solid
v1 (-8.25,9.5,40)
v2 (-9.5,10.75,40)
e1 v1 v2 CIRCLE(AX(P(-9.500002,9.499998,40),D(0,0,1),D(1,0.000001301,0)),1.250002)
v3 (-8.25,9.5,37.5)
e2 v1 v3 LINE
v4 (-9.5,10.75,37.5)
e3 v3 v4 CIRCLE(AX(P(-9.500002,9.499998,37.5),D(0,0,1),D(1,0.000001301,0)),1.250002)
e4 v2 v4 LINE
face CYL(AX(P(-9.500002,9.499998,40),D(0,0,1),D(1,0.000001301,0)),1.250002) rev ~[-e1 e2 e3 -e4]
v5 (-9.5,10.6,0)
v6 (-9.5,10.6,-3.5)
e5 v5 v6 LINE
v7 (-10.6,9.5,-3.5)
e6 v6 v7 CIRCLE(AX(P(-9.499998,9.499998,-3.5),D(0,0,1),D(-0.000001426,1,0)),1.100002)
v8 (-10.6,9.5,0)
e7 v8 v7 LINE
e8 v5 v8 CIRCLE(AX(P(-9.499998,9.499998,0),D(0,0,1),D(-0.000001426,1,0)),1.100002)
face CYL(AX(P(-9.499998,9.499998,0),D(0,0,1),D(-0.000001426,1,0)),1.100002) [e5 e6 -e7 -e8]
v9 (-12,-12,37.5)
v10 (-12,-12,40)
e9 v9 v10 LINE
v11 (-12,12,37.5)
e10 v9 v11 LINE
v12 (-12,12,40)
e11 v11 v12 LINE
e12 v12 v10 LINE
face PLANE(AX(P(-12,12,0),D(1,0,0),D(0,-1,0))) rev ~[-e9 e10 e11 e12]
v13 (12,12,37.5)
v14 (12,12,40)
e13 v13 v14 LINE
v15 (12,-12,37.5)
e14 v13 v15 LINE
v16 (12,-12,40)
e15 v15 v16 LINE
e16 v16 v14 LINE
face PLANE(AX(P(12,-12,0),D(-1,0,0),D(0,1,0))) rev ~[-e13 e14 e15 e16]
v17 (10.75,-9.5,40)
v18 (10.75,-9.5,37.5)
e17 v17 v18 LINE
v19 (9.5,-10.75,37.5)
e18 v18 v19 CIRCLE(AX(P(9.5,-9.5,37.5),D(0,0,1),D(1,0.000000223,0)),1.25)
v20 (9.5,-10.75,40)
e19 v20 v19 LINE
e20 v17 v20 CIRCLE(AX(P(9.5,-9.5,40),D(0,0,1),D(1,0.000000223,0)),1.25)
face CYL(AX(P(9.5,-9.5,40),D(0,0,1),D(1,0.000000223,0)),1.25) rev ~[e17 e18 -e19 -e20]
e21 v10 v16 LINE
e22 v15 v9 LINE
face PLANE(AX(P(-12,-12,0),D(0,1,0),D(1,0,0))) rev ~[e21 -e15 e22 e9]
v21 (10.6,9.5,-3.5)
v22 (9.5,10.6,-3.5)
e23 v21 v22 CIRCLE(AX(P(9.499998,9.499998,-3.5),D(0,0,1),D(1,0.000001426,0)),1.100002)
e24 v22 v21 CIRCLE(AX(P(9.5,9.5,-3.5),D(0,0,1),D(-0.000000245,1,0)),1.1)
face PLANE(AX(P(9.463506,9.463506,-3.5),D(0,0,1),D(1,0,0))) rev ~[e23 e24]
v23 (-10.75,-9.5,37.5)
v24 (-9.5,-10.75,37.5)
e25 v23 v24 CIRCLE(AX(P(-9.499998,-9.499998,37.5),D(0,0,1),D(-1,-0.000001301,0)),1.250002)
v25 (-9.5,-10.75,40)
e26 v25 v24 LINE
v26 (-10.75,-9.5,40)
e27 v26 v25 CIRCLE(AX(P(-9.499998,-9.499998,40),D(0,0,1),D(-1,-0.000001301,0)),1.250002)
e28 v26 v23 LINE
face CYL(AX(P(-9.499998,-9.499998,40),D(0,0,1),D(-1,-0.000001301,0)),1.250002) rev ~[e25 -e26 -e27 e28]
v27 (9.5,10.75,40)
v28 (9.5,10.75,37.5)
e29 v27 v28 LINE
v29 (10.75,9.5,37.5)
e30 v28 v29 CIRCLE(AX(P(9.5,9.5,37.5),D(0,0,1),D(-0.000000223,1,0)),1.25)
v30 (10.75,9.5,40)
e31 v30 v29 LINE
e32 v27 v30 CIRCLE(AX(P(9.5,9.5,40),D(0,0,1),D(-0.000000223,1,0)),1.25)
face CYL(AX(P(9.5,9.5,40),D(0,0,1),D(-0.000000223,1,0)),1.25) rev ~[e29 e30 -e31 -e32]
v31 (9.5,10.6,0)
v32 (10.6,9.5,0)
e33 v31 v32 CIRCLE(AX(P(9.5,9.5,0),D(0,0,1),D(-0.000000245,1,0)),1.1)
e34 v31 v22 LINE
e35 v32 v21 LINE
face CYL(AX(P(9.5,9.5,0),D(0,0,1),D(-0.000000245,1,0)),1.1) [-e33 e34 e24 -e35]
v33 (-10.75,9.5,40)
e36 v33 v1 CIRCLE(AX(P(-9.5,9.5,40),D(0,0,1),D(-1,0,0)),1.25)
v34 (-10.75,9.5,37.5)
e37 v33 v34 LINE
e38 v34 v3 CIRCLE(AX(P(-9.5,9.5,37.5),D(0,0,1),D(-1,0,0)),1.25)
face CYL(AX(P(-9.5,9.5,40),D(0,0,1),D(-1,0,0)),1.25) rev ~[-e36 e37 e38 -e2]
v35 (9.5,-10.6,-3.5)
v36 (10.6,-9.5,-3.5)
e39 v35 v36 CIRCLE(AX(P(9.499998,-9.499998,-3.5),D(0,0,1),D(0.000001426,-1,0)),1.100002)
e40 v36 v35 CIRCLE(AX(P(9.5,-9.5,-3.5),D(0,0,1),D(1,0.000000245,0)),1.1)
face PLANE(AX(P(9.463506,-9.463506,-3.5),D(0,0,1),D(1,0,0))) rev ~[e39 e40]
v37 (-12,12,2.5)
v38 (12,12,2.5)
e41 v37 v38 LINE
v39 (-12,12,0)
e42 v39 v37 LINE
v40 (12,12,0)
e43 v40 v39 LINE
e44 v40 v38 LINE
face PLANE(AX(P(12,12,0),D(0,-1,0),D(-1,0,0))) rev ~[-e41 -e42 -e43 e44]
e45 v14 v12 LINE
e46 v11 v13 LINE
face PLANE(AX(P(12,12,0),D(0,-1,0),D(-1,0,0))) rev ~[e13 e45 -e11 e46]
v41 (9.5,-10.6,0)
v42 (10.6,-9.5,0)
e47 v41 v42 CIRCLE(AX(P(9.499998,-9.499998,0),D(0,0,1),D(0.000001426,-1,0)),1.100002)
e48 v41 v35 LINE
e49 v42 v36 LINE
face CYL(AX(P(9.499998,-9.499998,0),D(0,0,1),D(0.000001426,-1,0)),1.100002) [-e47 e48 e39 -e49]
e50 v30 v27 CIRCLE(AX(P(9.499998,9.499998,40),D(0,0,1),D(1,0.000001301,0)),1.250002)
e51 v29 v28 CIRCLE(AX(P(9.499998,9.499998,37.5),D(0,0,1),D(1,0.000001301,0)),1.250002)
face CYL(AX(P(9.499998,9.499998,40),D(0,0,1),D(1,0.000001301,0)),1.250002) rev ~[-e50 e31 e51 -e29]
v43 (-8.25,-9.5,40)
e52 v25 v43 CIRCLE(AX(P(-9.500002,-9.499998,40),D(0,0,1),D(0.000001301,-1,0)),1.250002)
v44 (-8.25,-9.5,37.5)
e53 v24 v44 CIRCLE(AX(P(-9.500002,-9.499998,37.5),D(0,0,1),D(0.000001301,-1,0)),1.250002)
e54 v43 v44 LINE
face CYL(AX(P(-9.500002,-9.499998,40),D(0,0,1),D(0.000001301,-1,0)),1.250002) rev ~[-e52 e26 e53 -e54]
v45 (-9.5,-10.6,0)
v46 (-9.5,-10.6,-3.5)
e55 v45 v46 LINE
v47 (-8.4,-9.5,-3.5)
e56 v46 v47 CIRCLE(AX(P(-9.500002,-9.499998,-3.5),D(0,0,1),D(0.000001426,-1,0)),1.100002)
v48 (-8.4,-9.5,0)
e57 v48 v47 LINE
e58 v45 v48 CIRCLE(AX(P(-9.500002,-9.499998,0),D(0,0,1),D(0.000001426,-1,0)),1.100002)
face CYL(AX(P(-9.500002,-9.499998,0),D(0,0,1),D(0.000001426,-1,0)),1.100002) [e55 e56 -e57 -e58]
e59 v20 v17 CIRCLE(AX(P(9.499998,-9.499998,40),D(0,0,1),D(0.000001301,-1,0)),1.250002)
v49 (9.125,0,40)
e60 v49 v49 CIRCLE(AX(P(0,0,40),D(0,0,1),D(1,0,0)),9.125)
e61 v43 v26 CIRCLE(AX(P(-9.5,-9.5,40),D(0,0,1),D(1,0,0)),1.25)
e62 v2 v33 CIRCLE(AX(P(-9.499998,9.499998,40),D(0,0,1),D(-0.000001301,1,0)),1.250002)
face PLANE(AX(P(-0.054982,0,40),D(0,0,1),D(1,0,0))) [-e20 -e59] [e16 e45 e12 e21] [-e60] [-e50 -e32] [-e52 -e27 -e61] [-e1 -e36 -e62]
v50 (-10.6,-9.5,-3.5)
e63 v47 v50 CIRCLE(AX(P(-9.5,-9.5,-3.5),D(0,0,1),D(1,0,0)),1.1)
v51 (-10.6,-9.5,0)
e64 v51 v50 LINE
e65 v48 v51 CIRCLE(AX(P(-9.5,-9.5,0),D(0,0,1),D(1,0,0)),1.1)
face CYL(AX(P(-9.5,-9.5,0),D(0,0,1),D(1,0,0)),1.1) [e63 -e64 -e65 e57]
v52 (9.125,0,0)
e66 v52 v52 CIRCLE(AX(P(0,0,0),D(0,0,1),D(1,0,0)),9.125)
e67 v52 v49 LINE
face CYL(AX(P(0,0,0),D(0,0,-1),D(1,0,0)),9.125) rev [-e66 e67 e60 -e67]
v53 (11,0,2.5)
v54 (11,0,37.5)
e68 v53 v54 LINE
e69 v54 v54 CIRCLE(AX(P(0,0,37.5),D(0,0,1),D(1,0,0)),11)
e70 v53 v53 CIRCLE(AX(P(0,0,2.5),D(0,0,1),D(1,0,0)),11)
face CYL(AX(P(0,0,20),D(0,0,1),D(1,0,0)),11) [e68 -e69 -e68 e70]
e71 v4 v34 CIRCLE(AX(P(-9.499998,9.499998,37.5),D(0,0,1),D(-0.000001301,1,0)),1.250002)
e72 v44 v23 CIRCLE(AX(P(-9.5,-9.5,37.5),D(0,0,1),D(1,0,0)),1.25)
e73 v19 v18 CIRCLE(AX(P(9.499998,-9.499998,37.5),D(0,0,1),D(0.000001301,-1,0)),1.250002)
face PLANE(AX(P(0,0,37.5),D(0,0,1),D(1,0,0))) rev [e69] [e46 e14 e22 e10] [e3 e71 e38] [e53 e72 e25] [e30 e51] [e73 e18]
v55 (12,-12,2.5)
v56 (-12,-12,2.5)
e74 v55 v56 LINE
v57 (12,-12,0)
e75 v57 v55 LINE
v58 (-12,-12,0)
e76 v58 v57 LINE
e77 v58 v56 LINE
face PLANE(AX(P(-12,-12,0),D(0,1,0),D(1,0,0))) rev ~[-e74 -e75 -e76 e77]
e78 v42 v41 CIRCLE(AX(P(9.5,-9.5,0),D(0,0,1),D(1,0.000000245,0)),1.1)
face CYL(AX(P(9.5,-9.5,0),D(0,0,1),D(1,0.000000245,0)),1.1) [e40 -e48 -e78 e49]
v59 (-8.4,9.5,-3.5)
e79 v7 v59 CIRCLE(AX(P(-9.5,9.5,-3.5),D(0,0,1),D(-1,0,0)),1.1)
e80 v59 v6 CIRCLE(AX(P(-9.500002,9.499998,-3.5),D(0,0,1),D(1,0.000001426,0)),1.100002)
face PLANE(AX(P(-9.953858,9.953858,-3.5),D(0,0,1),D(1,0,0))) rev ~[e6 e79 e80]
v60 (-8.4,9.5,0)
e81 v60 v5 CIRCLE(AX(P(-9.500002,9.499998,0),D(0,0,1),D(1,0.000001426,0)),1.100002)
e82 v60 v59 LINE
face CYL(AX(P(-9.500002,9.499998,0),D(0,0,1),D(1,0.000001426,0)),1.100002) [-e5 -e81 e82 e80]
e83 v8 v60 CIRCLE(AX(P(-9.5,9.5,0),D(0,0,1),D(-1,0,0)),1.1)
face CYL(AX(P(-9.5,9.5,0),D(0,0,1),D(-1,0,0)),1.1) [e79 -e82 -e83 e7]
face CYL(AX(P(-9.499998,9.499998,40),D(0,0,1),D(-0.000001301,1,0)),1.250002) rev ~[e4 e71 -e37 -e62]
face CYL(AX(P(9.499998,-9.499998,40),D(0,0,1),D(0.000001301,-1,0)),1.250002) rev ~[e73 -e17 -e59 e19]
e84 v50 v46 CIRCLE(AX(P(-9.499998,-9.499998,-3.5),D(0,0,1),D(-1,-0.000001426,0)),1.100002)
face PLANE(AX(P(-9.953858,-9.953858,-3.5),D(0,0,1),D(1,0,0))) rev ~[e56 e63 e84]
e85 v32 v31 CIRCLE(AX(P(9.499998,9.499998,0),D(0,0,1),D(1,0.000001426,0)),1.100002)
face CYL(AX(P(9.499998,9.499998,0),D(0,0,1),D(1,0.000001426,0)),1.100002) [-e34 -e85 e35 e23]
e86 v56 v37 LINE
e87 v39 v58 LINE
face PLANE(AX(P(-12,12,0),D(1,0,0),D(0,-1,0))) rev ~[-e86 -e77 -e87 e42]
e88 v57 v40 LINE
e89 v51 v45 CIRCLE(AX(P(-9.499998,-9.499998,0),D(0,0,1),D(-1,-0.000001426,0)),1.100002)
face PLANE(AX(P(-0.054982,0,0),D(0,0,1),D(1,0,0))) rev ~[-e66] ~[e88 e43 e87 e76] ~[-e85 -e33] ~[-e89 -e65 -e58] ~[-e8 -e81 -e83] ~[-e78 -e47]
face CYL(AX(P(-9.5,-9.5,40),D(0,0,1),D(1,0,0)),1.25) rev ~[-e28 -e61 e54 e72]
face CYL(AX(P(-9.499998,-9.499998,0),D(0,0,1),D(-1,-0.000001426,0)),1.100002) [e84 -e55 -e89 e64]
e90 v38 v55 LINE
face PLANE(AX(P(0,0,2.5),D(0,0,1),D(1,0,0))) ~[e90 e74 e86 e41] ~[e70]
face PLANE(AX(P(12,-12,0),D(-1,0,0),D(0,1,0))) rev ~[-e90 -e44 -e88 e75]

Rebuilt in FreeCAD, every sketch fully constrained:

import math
import FreeCAD as App
import Part
import Sketcher

V = App.Vector
Q = App.Units.Quantity


def add_polygon(sketch, points):
    """Adds a closed chain of lines whose ends are joined by coincident constraints."""
    first, n = sketch.GeometryCount, len(points)
    for a, b in zip(points, points[1:] + points[:1]):
        sketch.addGeometry(Part.LineSegment(App.Vector(*a, 0), App.Vector(*b, 0)), False)
    for i in range(n):
        sketch.addConstraint(Sketcher.Constraint("Coincident", first + i, 2, first + (i + 1) % n, 1))

doc = App.newDocument("Part")
body = doc.addObject("PartDesign::Body", "Body")

sketch1 = doc.addObject("Sketcher::SketchObject", "Sketch")
body.addObject(sketch1)
sketch1.AttachmentSupport = (doc.XY_Plane, [""])
sketch1.MapMode = "FlatFace"
add_polygon(sketch1, [(-12, 12), (-12, -12), (12, -12), (12, 12)])
sketch1.addGeometry(Part.Circle(V(0, 0, 0), V(0, 0, 1), 9.125), False)
sketch1.addConstraint([
    Sketcher.Constraint("Vertical", 0),
    Sketcher.Constraint("Horizontal", 1),
    Sketcher.Constraint("Vertical", 2),
    Sketcher.Constraint("Horizontal", 3),
    Sketcher.Constraint("Coincident", 4, 3, -1, 1),
    Sketcher.Constraint("Symmetric", 0, 2, 2, 2, -1, 1),
    Sketcher.Constraint("Equal", 3, 0),
    Sketcher.Constraint("Diameter", 4, Q("18.25 mm")),
    Sketcher.Constraint("DistanceX", 1, 1, 1, 2, Q("24 mm")),
])
pad1 = doc.addObject("PartDesign::Pad", "Pad")
body.addObject(pad1)
pad1.Profile = sketch1
pad1.Length = 40

sketch2 = doc.addObject("Sketcher::SketchObject", "Sketch001")
body.addObject(sketch2)
sketch2.AttachmentSupport = (doc.XZ_Plane, [""])
sketch2.MapMode = "FlatFace"
add_polygon(sketch2, [(11, 37.5), (11, 2.5), (17, 2.5), (17, 37.5)])
sketch2.addConstraint([
    Sketcher.Constraint("Vertical", 0),
    Sketcher.Constraint("Horizontal", 1),
    Sketcher.Constraint("Vertical", 2),
    Sketcher.Constraint("Horizontal", 3),
    Sketcher.Constraint("DistanceX", 1, 1, 1, 2, Q("6 mm")),
    Sketcher.Constraint("DistanceY", 0, 2, 0, 1, Q("35 mm")),
    Sketcher.Constraint("DistanceX", -1, 1, 0, 2, Q("11 mm")),
    Sketcher.Constraint("DistanceY", -1, 1, 0, 2, Q("2.5 mm")),
])
groove = doc.addObject("PartDesign::Groove", "Groove")
body.addObject(groove)
groove.Profile = sketch2
groove.ReferenceAxis = (sketch2, ["V_Axis"])
groove.Angle = 360

sketch3 = doc.addObject("Sketcher::SketchObject", "Sketch002")
body.addObject(sketch3)
sketch3.AttachmentSupport = (doc.XY_Plane, [""])
sketch3.MapMode = "FlatFace"
sketch3.addGeometry([
    Part.ArcOfCircle(Part.Circle(V(-9.499998, 9.499998, 0), V(0, 0, 1), 1.100002), math.radians(90.000082), math.radians(179.999918)),
    Part.ArcOfCircle(Part.Circle(V(-9.5, 9.5, 0), V(0, 0, 1), 1.1), math.radians(180), math.radians(360)),
    Part.ArcOfCircle(Part.Circle(V(-9.500002, 9.499998, 0), V(0, 0, 1), 1.100002), math.radians(0.000082), math.radians(89.999918)),
    Part.ArcOfCircle(Part.Circle(V(-9.499998, -9.499998, 0), V(0, 0, 1), 1.100002), math.radians(-179.999918), math.radians(-90.000082)),
    Part.ArcOfCircle(Part.Circle(V(-9.500002, -9.499998, 0), V(0, 0, 1), 1.100002), math.radians(-89.999918), math.radians(-0.000082)),
    Part.ArcOfCircle(Part.Circle(V(-9.5, -9.5, 0), V(0, 0, 1), 1.1), math.radians(0), math.radians(180)),
    Part.ArcOfCircle(Part.Circle(V(9.5, -9.5, 0), V(0, 0, 1), 1.1), math.radians(0.000014), math.radians(269.999986)),
    Part.ArcOfCircle(Part.Circle(V(9.499998, -9.499998, 0), V(0, 0, 1), 1.100002), math.radians(-89.999918), math.radians(-0.000082)),
    Part.ArcOfCircle(Part.Circle(V(9.5, 9.5, 0), V(0, 0, 1), 1.1), math.radians(90.000014), math.radians(359.999986)),
    Part.ArcOfCircle(Part.Circle(V(9.499998, 9.499998, 0), V(0, 0, 1), 1.100002), math.radians(0.000082), math.radians(89.999918)),
], False)
sketch3.addConstraint([
    Sketcher.Constraint("Tangent", 0, 2, 1, 1),
    Sketcher.Constraint("Tangent", 1, 2, 2, 1),
    Sketcher.Constraint("Coincident", 2, 2, 0, 1),
    Sketcher.Constraint("Coincident", 3, 2, 4, 1),
    Sketcher.Constraint("Tangent", 4, 2, 5, 1),
    Sketcher.Constraint("Tangent", 5, 2, 3, 1),
    Sketcher.Constraint("Tangent", 6, 1, 7, 2),
    Sketcher.Constraint("Coincident", 7, 1, 6, 2),
    Sketcher.Constraint("Tangent", 8, 1, 9, 2),
    Sketcher.Constraint("Coincident", 9, 1, 8, 2),
    Sketcher.Constraint("Equal", 0, 1),
    Sketcher.Constraint("Equal", 2, 3),
    Sketcher.Constraint("Equal", 4, 5),
    Sketcher.Constraint("Equal", 5, 6),
    Sketcher.Constraint("Equal", 7, 8),
    Sketcher.Constraint("Symmetric", 0, 3, 6, 3, -1, 1),
    Sketcher.Constraint("Symmetric", 3, 3, 8, 3, -1, 1),
    Sketcher.Constraint("Symmetric", 3, 3, 6, 3, -2),
    Sketcher.Constraint("Horizontal", 9, 3, 0, 2),
    Sketcher.Constraint("Horizontal", 0, 2, 1, 2),
    Sketcher.Constraint("Horizontal", 7, 3, 4, 2),
    Sketcher.Constraint("Horizontal", 4, 2, 5, 2),
    Sketcher.Constraint("Horizontal", 5, 2, 6, 1),
    Sketcher.Constraint("Horizontal", 1, 2, 9, 1),
    Sketcher.Constraint("Vertical", 5, 3, 2, 2),
    Sketcher.Constraint("Vertical", 2, 2, 3, 2),
    Sketcher.Constraint("Vertical", 9, 3, 7, 1),
    Sketcher.Constraint("Vertical", 7, 1, 8, 1),
    Sketcher.Constraint("Radius", 0, Q("1.100002 mm")),
    Sketcher.Constraint("DistanceY", 3, 3, 1, 3, Q("18.999998 mm")),
    Sketcher.Constraint("DistanceX", 3, 3, 6, 3, Q("18.999999 mm")),
])
pad2 = doc.addObject("PartDesign::Pad", "Pad001")
body.addObject(pad2)
pad2.Profile = sketch3
pad2.Length = 3.5
pad2.Reversed = True

sketch4 = doc.addObject("Sketcher::SketchObject", "Sketch003")
body.addObject(sketch4)
sketch4.AttachmentSupport = (doc.XY_Plane, [""])
sketch4.MapMode = "FlatFace"
sketch4.AttachmentOffset = App.Placement(V(0, 0, 40), App.Rotation())
sketch4.addGeometry([
    Part.ArcOfCircle(Part.Circle(V(9.5, -9.5, 0), V(0, 0, 1), 1.25), math.radians(0.000013), math.radians(269.999987)),
    Part.ArcOfCircle(Part.Circle(V(9.499998, -9.499998, 0), V(0, 0, 1), 1.250002), math.radians(-89.999925), math.radians(-0.000075)),
    Part.ArcOfCircle(Part.Circle(V(-9.499998, 9.499998, 0), V(0, 0, 1), 1.250002), math.radians(90.000075), math.radians(179.999925)),
    Part.ArcOfCircle(Part.Circle(V(-9.5, 9.5, 0), V(0, 0, 1), 1.25), math.radians(180), math.radians(360)),
    Part.ArcOfCircle(Part.Circle(V(-9.500002, 9.499998, 0), V(0, 0, 1), 1.250002), math.radians(0.000075), math.radians(89.999925)),
    Part.ArcOfCircle(Part.Circle(V(-9.5, -9.5, 0), V(0, 0, 1), 1.25), math.radians(0), math.radians(180)),
    Part.ArcOfCircle(Part.Circle(V(-9.499998, -9.499998, 0), V(0, 0, 1), 1.250002), math.radians(-179.999925), math.radians(-90.000075)),
    Part.ArcOfCircle(Part.Circle(V(-9.500002, -9.499998, 0), V(0, 0, 1), 1.250002), math.radians(-89.999925), math.radians(-0.000075)),
    Part.ArcOfCircle(Part.Circle(V(9.5, 9.5, 0), V(0, 0, 1), 1.25), math.radians(90.000013), math.radians(359.999987)),
    Part.ArcOfCircle(Part.Circle(V(9.499998, 9.499998, 0), V(0, 0, 1), 1.250002), math.radians(0.000075), math.radians(89.999925)),
], False)
sketch4.addConstraint([
    Sketcher.Constraint("Tangent", 0, 1, 1, 2),
    Sketcher.Constraint("Coincident", 1, 1, 0, 2),
    Sketcher.Constraint("Tangent", 2, 2, 3, 1),
    Sketcher.Constraint("Tangent", 3, 2, 4, 1),
    Sketcher.Constraint("Coincident", 4, 2, 2, 1),
    Sketcher.Constraint("Tangent", 5, 2, 6, 1),
    Sketcher.Constraint("Coincident", 6, 2, 7, 1),
    Sketcher.Constraint("Tangent", 7, 2, 5, 1),
    Sketcher.Constraint("Tangent", 8, 1, 9, 2),
    Sketcher.Constraint("Coincident", 9, 1, 8, 2),
    Sketcher.Constraint("Equal", 1, 2),
    Sketcher.Constraint("Equal", 2, 3),
    Sketcher.Constraint("Equal", 4, 5),
    Sketcher.Constraint("Equal", 5, 6),
    Sketcher.Constraint("Equal", 7, 8),
    Sketcher.Constraint("Symmetric", 0, 3, 2, 3, -1, 1),
    Sketcher.Constraint("Symmetric", 5, 3, 8, 3, -1, 1),
    Sketcher.Constraint("Symmetric", 0, 3, 5, 3, -2),
    Sketcher.Constraint("Horizontal", 7, 3, 0, 1),
    Sketcher.Constraint("Horizontal", 9, 3, 2, 2),
    Sketcher.Constraint("Horizontal", 2, 2, 3, 2),
    Sketcher.Constraint("Horizontal", 0, 1, 5, 2),
    Sketcher.Constraint("Horizontal", 5, 2, 7, 2),
    Sketcher.Constraint("Horizontal", 3, 2, 9, 1),
    Sketcher.Constraint("Vertical", 9, 3, 1, 1),
    Sketcher.Constraint("Vertical", 7, 3, 4, 2),
    Sketcher.Constraint("Vertical", 4, 2, 6, 2),
    Sketcher.Constraint("Vertical", 1, 1, 8, 1),
    Sketcher.Constraint("Radius", 0, Q("1.25 mm")),
    Sketcher.Constraint("DistanceX", 2, 3, 0, 3, Q("18.999999 mm")),
    Sketcher.Constraint("DistanceY", 0, 3, 2, 3, Q("18.999999 mm")),
])
pocket1 = doc.addObject("PartDesign::Pocket", "Pocket")
body.addObject(pocket1)
pocket1.Profile = sketch4
pocket1.Length = 25

doc.recompute()
